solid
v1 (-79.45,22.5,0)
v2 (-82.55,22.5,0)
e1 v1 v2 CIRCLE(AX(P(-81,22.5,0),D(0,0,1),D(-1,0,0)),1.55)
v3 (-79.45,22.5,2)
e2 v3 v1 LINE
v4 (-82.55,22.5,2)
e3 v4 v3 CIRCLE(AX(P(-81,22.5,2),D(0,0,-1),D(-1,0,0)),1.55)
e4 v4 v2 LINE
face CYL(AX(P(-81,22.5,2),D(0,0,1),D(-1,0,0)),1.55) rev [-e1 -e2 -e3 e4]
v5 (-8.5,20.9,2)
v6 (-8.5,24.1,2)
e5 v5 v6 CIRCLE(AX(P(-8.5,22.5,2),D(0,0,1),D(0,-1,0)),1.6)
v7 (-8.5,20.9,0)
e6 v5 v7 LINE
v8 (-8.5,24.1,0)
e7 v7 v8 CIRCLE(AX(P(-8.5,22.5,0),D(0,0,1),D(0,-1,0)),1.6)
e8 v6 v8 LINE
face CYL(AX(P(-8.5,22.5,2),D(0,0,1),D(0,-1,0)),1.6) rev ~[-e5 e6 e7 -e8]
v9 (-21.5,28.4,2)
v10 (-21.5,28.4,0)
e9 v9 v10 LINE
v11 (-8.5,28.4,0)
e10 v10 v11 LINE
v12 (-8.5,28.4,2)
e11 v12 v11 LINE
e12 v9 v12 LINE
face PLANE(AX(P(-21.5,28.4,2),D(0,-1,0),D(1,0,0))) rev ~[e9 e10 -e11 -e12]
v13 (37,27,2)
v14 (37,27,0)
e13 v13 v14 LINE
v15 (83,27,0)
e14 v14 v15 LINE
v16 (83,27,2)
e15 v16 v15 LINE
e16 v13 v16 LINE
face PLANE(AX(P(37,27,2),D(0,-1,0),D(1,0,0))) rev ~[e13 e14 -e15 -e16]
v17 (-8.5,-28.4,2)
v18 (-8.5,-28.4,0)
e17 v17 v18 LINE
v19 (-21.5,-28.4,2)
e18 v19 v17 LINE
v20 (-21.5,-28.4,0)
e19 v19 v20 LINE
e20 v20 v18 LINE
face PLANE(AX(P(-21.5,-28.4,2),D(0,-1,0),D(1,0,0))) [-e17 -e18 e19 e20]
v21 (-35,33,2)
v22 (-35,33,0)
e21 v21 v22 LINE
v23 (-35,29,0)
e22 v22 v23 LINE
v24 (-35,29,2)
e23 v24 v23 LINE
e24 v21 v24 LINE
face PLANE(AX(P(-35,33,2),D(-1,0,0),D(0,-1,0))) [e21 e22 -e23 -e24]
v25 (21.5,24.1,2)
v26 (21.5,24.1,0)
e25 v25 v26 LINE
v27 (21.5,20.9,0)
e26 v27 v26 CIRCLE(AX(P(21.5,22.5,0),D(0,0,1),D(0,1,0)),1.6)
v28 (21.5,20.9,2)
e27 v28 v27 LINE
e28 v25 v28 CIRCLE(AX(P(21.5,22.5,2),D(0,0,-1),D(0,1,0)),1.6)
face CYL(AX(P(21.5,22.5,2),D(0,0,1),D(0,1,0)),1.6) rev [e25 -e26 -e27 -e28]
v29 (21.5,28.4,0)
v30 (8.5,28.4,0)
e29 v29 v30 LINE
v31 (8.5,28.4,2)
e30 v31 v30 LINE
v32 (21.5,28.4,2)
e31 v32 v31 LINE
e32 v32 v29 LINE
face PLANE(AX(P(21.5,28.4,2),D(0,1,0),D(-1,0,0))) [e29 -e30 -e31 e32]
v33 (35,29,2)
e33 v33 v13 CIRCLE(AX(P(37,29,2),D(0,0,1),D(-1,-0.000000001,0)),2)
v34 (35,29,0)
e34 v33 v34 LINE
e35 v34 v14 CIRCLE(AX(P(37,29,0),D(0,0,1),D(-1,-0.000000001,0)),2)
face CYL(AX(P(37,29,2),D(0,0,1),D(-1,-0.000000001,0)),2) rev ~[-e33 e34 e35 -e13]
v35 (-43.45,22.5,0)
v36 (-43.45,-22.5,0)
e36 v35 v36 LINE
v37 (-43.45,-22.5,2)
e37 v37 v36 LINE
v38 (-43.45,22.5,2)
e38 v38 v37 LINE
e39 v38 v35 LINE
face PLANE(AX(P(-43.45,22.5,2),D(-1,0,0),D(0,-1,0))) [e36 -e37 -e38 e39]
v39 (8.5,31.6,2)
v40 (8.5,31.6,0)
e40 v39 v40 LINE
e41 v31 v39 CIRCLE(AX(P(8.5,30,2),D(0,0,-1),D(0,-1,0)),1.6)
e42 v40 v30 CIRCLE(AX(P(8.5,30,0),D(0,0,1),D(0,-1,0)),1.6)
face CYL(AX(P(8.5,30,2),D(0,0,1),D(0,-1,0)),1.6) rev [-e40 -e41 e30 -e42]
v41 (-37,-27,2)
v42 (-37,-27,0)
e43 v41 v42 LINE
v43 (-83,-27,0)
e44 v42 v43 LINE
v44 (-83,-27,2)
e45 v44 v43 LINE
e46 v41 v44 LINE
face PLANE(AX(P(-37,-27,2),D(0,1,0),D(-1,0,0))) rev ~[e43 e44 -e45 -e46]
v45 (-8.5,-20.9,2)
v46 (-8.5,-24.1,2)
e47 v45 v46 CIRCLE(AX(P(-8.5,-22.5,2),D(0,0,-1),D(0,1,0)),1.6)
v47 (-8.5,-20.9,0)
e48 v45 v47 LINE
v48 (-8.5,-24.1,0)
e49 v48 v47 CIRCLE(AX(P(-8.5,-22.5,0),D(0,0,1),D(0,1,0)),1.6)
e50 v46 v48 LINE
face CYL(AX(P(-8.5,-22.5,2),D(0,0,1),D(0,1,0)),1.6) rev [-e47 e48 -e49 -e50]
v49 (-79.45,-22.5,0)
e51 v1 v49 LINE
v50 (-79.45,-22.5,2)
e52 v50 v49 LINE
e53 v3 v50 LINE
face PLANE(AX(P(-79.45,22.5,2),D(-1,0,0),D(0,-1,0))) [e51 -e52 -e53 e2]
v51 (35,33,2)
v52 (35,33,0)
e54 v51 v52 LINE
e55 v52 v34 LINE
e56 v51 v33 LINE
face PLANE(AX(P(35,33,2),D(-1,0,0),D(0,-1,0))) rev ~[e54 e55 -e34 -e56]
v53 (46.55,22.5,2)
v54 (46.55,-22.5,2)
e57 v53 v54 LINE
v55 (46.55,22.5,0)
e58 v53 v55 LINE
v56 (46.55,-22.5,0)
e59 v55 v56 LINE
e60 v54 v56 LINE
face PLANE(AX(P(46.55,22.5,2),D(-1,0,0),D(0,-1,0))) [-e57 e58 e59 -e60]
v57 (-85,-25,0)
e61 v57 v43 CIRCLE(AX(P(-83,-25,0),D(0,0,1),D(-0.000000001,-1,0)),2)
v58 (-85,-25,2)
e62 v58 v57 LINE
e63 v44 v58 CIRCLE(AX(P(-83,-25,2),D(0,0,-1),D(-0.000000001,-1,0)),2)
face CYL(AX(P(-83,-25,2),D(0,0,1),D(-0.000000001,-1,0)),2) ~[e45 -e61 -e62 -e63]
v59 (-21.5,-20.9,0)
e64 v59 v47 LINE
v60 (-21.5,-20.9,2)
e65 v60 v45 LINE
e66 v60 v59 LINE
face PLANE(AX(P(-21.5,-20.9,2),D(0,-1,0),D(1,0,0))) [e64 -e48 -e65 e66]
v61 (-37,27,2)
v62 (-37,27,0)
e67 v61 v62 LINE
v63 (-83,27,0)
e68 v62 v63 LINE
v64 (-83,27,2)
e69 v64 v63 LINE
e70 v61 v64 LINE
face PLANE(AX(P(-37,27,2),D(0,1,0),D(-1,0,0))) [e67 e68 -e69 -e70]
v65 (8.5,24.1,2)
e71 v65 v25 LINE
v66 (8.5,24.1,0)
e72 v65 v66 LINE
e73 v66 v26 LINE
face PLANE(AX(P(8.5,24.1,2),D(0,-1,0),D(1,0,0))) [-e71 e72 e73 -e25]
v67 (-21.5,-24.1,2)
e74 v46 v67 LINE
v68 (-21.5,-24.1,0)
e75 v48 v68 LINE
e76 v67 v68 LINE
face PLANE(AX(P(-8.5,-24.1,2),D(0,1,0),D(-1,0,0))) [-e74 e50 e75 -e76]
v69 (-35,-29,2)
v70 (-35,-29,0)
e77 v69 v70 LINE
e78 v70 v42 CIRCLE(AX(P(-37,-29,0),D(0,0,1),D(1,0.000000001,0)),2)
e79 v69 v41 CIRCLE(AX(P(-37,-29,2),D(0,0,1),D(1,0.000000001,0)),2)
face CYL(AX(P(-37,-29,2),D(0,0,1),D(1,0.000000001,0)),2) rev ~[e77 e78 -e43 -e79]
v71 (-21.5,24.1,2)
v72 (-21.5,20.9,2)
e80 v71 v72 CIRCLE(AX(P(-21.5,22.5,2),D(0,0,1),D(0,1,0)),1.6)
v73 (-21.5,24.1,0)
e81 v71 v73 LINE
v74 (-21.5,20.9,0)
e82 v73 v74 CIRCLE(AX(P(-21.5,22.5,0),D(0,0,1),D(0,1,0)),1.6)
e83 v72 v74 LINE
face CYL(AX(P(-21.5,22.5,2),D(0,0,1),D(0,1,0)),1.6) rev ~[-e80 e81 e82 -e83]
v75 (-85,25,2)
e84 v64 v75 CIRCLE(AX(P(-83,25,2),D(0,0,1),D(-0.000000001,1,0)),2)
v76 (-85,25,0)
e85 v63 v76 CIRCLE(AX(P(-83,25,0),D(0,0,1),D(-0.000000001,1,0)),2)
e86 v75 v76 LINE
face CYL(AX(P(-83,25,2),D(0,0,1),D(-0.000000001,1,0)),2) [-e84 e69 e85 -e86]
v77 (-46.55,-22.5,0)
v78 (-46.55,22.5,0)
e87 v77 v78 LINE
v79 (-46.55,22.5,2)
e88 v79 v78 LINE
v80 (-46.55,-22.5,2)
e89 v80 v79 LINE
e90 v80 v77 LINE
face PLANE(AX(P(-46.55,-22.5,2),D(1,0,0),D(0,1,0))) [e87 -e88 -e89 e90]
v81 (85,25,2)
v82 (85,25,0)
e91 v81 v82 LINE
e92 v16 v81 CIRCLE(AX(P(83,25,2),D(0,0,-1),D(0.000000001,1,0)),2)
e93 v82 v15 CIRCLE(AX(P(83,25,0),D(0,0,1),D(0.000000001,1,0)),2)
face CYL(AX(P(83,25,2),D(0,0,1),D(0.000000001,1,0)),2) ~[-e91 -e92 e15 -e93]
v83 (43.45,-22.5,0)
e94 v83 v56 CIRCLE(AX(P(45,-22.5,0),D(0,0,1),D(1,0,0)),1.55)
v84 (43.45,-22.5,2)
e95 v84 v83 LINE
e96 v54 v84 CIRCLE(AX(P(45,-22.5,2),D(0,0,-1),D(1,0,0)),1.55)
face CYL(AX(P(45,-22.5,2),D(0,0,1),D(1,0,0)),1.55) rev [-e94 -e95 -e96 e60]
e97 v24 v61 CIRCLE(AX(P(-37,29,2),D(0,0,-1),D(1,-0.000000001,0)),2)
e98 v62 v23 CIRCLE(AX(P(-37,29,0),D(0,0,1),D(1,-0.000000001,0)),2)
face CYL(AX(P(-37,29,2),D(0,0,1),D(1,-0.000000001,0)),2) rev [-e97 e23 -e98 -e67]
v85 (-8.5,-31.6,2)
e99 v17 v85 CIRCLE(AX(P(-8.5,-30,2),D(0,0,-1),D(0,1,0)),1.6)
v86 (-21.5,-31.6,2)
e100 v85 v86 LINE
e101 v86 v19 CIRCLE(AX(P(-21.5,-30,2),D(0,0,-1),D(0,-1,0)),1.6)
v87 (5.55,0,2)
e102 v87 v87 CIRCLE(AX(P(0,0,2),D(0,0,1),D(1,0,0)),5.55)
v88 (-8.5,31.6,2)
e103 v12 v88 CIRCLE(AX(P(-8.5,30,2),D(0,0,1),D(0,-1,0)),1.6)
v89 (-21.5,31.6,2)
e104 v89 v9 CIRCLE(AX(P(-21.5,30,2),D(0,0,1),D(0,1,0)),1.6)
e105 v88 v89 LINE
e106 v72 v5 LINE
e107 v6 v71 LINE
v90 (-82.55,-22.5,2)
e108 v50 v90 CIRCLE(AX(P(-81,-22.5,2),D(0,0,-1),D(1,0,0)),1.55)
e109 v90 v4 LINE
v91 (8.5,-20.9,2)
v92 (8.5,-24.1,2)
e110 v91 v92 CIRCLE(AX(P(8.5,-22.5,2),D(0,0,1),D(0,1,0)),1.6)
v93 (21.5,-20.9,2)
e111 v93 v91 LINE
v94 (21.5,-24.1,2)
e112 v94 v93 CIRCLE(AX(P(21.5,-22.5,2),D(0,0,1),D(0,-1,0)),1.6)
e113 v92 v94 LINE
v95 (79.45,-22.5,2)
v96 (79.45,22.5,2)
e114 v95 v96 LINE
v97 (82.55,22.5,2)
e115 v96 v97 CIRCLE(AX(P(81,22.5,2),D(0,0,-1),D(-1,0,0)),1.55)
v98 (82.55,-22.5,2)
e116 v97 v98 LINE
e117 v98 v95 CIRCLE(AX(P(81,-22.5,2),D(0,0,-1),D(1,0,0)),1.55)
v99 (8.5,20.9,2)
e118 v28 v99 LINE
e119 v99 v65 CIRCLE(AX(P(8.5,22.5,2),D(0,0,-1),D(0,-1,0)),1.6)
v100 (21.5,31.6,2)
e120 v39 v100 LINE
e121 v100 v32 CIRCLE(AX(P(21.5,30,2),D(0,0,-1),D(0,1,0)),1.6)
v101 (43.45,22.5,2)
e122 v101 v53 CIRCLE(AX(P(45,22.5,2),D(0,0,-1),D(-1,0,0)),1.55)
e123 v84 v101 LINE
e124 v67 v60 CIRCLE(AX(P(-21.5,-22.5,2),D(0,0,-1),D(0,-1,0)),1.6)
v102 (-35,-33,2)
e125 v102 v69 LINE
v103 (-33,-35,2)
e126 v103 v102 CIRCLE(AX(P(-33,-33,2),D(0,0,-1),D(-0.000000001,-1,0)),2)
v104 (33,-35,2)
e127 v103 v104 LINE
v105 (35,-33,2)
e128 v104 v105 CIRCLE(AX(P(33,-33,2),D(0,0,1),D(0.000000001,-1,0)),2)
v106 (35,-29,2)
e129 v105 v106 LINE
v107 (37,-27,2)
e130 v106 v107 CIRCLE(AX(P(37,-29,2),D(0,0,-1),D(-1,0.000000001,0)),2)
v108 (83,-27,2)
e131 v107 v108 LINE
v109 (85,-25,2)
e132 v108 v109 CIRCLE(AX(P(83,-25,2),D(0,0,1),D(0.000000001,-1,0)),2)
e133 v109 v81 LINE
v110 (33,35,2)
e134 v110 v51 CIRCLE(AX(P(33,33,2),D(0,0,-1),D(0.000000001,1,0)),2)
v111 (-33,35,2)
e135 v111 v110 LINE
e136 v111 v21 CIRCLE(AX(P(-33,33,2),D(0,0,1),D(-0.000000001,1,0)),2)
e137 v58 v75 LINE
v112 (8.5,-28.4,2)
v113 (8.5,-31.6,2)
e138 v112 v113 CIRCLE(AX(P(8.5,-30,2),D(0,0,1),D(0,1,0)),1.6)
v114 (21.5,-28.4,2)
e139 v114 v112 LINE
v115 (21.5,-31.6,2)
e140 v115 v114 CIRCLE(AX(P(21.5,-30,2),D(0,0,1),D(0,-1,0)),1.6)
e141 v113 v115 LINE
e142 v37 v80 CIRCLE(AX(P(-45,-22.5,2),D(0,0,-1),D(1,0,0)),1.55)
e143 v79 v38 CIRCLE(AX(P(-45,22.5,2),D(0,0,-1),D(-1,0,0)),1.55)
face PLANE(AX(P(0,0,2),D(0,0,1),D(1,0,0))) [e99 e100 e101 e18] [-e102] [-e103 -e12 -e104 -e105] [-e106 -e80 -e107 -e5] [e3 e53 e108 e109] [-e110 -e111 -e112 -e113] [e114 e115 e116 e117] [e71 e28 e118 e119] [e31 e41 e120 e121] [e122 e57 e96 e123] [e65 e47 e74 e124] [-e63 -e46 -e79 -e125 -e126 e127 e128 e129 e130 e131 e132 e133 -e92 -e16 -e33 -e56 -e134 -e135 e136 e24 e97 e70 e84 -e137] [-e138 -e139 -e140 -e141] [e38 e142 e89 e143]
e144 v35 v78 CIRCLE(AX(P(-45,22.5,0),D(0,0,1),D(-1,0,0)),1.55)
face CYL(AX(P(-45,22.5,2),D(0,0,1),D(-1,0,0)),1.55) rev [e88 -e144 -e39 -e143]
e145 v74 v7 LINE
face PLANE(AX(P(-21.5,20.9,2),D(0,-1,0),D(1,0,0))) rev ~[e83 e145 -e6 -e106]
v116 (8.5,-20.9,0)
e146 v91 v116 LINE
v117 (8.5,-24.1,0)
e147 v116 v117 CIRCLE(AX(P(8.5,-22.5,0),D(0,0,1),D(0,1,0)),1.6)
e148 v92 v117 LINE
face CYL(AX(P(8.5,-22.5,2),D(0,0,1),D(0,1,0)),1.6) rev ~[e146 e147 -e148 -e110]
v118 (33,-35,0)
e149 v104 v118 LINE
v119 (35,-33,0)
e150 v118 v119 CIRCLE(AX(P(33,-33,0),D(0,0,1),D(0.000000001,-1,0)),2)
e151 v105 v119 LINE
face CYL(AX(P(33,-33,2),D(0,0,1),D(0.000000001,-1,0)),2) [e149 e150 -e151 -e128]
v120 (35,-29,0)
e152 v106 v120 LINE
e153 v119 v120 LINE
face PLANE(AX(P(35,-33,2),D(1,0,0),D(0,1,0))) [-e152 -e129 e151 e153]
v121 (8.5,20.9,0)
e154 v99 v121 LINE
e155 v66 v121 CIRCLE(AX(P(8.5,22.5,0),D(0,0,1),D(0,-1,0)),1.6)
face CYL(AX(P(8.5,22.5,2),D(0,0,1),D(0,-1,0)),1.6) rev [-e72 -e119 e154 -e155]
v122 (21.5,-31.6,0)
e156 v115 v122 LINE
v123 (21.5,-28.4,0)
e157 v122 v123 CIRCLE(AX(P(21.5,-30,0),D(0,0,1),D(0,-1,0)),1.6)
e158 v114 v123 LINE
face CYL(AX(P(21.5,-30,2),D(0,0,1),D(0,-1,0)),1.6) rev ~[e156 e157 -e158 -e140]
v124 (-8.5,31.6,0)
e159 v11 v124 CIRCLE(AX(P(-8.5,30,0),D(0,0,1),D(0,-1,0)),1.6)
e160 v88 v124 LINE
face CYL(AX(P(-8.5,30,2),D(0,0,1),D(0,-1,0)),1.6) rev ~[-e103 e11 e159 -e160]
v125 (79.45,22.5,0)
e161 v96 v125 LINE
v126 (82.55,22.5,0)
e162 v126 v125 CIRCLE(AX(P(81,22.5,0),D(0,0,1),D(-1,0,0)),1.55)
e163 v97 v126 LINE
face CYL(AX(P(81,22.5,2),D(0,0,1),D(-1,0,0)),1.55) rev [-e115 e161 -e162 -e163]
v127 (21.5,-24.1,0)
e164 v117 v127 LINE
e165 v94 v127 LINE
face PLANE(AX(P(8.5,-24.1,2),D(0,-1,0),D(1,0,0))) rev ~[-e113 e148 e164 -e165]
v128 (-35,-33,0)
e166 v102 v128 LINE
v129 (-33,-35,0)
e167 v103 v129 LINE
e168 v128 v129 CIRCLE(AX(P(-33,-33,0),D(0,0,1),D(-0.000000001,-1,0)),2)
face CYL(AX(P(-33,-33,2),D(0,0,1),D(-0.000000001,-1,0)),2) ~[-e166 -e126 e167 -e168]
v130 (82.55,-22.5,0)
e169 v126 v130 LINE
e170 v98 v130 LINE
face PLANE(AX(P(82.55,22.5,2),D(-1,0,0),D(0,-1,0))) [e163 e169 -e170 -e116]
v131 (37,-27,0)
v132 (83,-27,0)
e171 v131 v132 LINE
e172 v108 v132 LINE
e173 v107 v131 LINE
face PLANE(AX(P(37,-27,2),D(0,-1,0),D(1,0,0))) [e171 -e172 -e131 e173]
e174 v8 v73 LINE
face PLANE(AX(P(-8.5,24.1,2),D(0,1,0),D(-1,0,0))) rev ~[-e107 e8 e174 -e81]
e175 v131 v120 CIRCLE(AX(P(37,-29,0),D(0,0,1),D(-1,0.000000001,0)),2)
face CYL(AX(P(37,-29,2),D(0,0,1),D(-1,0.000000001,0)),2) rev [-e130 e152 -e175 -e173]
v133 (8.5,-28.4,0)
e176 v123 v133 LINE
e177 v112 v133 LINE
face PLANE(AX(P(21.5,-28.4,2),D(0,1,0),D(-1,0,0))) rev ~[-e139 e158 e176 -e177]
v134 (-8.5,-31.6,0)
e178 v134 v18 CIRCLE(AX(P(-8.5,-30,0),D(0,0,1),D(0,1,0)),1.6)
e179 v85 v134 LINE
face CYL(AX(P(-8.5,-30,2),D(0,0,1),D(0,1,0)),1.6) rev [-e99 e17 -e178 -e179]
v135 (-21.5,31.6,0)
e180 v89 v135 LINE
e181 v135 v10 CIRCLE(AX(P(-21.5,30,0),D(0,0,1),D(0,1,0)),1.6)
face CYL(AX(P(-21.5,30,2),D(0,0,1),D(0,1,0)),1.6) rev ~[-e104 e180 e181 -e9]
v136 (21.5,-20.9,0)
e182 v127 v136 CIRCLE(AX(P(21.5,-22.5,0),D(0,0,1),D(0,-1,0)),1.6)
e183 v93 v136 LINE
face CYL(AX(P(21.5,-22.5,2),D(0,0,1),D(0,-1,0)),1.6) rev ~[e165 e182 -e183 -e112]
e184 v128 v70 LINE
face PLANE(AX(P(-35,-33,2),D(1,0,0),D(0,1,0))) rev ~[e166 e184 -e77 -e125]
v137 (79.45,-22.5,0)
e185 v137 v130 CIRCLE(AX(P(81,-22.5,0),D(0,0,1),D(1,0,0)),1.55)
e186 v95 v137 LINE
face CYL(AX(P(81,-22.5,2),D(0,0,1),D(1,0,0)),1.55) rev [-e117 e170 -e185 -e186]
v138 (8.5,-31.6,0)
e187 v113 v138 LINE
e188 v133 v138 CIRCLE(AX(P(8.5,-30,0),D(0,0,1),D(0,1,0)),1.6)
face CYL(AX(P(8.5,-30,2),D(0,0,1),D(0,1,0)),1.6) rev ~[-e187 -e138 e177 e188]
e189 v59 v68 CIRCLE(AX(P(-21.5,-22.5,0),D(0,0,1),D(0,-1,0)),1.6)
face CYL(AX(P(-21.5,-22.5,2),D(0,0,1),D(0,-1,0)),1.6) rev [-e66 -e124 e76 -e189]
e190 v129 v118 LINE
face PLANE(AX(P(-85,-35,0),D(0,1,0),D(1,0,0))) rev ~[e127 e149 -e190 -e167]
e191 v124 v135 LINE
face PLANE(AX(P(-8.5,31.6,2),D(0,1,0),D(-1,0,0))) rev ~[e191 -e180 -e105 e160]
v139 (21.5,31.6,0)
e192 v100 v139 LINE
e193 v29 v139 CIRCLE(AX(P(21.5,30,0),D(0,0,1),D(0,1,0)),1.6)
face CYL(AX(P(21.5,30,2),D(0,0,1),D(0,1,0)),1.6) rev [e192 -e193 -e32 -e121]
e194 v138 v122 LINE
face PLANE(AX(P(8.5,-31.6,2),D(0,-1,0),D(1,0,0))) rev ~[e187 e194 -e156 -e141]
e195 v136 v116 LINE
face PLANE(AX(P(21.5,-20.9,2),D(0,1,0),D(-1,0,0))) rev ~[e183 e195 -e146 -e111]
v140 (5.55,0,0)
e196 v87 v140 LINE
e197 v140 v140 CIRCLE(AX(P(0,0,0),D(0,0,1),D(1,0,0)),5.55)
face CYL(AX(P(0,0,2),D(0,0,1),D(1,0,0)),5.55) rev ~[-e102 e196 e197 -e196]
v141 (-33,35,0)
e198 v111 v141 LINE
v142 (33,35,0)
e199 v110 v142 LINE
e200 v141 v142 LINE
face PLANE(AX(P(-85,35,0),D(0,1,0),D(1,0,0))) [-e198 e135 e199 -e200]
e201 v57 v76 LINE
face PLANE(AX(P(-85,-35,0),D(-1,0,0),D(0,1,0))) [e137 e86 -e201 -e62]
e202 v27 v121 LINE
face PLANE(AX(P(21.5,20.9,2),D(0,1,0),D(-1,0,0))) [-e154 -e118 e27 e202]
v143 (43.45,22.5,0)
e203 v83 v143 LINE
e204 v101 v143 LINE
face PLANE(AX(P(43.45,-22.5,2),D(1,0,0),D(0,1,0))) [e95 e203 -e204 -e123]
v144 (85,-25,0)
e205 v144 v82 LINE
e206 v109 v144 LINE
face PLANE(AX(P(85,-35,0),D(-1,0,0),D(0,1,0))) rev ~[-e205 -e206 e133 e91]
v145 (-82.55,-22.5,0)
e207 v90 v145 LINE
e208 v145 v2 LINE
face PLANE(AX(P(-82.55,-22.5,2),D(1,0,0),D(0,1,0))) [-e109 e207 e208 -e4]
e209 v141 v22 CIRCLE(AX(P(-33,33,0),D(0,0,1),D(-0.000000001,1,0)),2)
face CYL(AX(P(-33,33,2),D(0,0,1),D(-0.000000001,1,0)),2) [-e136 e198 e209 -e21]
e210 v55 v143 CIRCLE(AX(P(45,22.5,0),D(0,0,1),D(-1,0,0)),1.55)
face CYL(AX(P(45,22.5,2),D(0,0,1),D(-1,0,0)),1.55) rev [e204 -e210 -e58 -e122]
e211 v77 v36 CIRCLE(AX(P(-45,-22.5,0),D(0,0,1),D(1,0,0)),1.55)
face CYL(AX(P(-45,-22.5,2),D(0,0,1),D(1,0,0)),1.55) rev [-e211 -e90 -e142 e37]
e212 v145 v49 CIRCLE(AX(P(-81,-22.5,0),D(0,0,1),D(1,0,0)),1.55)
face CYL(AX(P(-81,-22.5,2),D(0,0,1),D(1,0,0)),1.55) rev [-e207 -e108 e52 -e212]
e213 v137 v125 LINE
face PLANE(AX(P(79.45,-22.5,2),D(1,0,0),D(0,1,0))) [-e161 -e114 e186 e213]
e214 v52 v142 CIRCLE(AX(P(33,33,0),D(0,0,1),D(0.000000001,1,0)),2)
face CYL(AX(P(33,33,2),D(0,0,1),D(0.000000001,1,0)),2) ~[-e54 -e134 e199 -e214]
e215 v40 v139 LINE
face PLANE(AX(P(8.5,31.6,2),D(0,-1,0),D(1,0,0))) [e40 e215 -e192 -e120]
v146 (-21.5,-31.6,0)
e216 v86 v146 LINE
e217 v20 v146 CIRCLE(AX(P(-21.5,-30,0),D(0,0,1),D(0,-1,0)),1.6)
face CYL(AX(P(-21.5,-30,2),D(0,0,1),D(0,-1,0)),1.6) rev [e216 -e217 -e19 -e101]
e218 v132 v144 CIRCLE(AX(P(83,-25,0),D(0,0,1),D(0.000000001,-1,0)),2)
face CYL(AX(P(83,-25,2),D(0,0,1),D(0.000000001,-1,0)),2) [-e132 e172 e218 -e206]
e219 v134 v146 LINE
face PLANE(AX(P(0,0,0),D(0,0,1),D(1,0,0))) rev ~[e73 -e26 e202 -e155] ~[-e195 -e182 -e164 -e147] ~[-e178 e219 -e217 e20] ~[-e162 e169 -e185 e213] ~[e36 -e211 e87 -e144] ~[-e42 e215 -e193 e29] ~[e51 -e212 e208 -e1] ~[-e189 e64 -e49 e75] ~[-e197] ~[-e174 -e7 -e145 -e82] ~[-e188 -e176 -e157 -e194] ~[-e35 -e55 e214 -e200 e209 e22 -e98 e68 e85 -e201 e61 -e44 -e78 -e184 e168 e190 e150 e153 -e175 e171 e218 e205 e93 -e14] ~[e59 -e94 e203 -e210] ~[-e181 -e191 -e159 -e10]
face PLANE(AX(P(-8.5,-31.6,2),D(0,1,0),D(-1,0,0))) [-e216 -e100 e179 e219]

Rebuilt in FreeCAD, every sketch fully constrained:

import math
import FreeCAD as App
import Part
import Sketcher


def add_polygon(sketch, points):
    """Adds a closed chain of lines whose ends are joined by coincident constraints."""
    first, n = sketch.GeometryCount, len(points)
    for a, b in zip(points, points[1:] + points[:1]):
        sketch.addGeometry(Part.LineSegment(App.Vector(*a, 0), App.Vector(*b, 0)), False)
    for i in range(n):
        sketch.addConstraint(Sketcher.Constraint("Coincident", first + i, 2, first + (i + 1) % n, 1))

doc = App.newDocument("Part")
params = doc.addObject("Spreadsheet::Sheet", "Params")
for row, (alias, value) in enumerate([
    ("sketch1_width", "170 mm"),
    ("sketch1_height", "70 mm"),
    ("pad1_length", "2 mm"),
    ("sketch2_diameter", "11.1 mm"),
    ("sketch2_radius", "1.6 mm"),
    ("sketch2_width", "13 mm"),
    ("sketch2_height", "45 mm"),
    ("sketch2_radius2", "1.55 mm"),
    ("sketch3_radius", "2 mm"),
    ("sketch3_width", "52 mm"),
    ("sketch3_height", "4 mm"),
], start=1):
    params.set(f"A{row}", alias)
    params.set(f"B{row}", "=" + value)
    params.setAlias(f"B{row}", alias)

body = doc.addObject("PartDesign::Body", "Body")

# Sketch on XY plane
sketch1 = body.newObject("Sketcher::SketchObject", "Sketch")
sketch1.AttachmentSupport = (doc.getObject("XY_Plane"), [""])
sketch1.MapMode = "FlatFace"
add_polygon(sketch1, [(-85, 35), (-85, -35), (85, -35), (85, 35)])  # lines 0-3
sketch1.addConstraint(Sketcher.Constraint("Vertical", 0))
sketch1.addConstraint(Sketcher.Constraint("Horizontal", 1))
sketch1.addConstraint(Sketcher.Constraint("Vertical", 2))
sketch1.addConstraint(Sketcher.Constraint("Horizontal", 3))
sketch1.addConstraint(Sketcher.Constraint("Symmetric", 0, 2, 2, 2, -1, 1))
sketch1.addConstraint(Sketcher.Constraint("DistanceX", 1, 1, 1, 2, 170.0))
sketch1.addConstraint(Sketcher.Constraint("DistanceY", 0, 2, 0, 1, 70.0))
sketch1.setExpression("Constraints[9]", "Params.sketch1_width")
sketch1.setExpression("Constraints[10]", "Params.sketch1_height")
pad1 = body.newObject("PartDesign::Pad", "Pad")
pad1.Profile = sketch1
pad1.setExpression("Length", "Params.pad1_length")

# Sketch on XY plane
sketch2 = body.newObject("Sketcher::SketchObject", "Sketch001")
sketch2.AttachmentSupport = (doc.getObject("XY_Plane"), [""])
sketch2.MapMode = "FlatFace"
sketch2.AttachmentOffset = App.Placement(App.Vector(0, 0, 2), App.Rotation())
sketch2.addGeometry(Part.Circle(App.Vector(0, 0, 0), App.Vector(0, 0, 1), 5.5), False)
sketch2.addGeometry(Part.LineSegment(App.Vector(43.5, 22.5, 0), App.Vector(43.5, -22.5, 0)), False)
sketch2.addGeometry(Part.ArcOfCircle(Part.Circle(App.Vector(45, -22.5, 0), App.Vector(0, 0, 1), 1.6), math.radians(180), math.radians(360)), False)
sketch2.addGeometry(Part.LineSegment(App.Vector(46.5, -22.5, 0), App.Vector(46.5, 22.5, 0)), False)
sketch2.addGeometry(Part.ArcOfCircle(Part.Circle(App.Vector(45, 22.5, 0), App.Vector(0, 0, 1), 1.6), math.radians(0), math.radians(180)), False)
sketch2.addGeometry(Part.LineSegment(App.Vector(-46.5, 22.5, 0), App.Vector(-46.5, -22.5, 0)), False)
sketch2.addGeometry(Part.ArcOfCircle(Part.Circle(App.Vector(-45, -22.5, 0), App.Vector(0, 0, 1), 1.6), math.radians(180), math.radians(360)), False)
sketch2.addGeometry(Part.LineSegment(App.Vector(-43.5, -22.5, 0), App.Vector(-43.5, 22.5, 0)), False)
sketch2.addGeometry(Part.ArcOfCircle(Part.Circle(App.Vector(-45, 22.5, 0), App.Vector(0, 0, 1), 1.6), math.radians(0), math.radians(180)), False)
sketch2.addGeometry(Part.LineSegment(App.Vector(8.5, 28.4, 0), App.Vector(21.5, 28.4, 0)), False)
sketch2.addGeometry(Part.ArcOfCircle(Part.Circle(App.Vector(21.5, 30, 0), App.Vector(0, 0, 1), 1.6), math.radians(-90), math.radians(90)), False)
sketch2.addGeometry(Part.LineSegment(App.Vector(21.5, 31.6, 0), App.Vector(8.5, 31.6, 0)), False)
sketch2.addGeometry(Part.ArcOfCircle(Part.Circle(App.Vector(8.5, 30, 0), App.Vector(0, 0, 1), 1.6), math.radians(90), math.radians(270)), False)
sketch2.addGeometry(Part.LineSegment(App.Vector(-82.5, 22.5, 0), App.Vector(-82.5, -22.5, 0)), False)
sketch2.addGeometry(Part.ArcOfCircle(Part.Circle(App.Vector(-81, -22.5, 0), App.Vector(0, 0, 1), 1.6), math.radians(180), math.radians(360)), False)
sketch2.addGeometry(Part.LineSegment(App.Vector(-79.5, -22.5, 0), App.Vector(-79.5, 22.5, 0)), False)
sketch2.addGeometry(Part.ArcOfCircle(Part.Circle(App.Vector(-81, 22.5, 0), App.Vector(0, 0, 1), 1.6), math.radians(0), math.radians(180)), False)
sketch2.addGeometry(Part.LineSegment(App.Vector(79.5, 22.5, 0), App.Vector(79.5, -22.5, 0)), False)
sketch2.addGeometry(Part.ArcOfCircle(Part.Circle(App.Vector(81, -22.5, 0), App.Vector(0, 0, 1), 1.6), math.radians(180), math.radians(360)), False)
sketch2.addGeometry(Part.LineSegment(App.Vector(82.5, -22.5, 0), App.Vector(82.5, 22.5, 0)), False)
sketch2.addGeometry(Part.ArcOfCircle(Part.Circle(App.Vector(81, 22.5, 0), App.Vector(0, 0, 1), 1.6), math.radians(0), math.radians(180)), False)
sketch2.addGeometry(Part.LineSegment(App.Vector(8.5, 20.9, 0), App.Vector(21.5, 20.9, 0)), False)
sketch2.addGeometry(Part.ArcOfCircle(Part.Circle(App.Vector(21.5, 22.5, 0), App.Vector(0, 0, 1), 1.6), math.radians(-90), math.radians(90)), False)
sketch2.addGeometry(Part.LineSegment(App.Vector(21.5, 24.1, 0), App.Vector(8.5, 24.1, 0)), False)
sketch2.addGeometry(Part.ArcOfCircle(Part.Circle(App.Vector(8.5, 22.5, 0), App.Vector(0, 0, 1), 1.6), math.radians(90), math.radians(270)), False)
sketch2.addGeometry(Part.LineSegment(App.Vector(-21.5, 28.4, 0), App.Vector(-8.5, 28.4, 0)), False)
sketch2.addGeometry(Part.ArcOfCircle(Part.Circle(App.Vector(-8.5, 30, 0), App.Vector(0, 0, 1), 1.6), math.radians(-90), math.radians(90)), False)
sketch2.addGeometry(Part.LineSegment(App.Vector(-8.5, 31.6, 0), App.Vector(-21.5, 31.6, 0)), False)
sketch2.addGeometry(Part.ArcOfCircle(Part.Circle(App.Vector(-21.5, 30, 0), App.Vector(0, 0, 1), 1.6), math.radians(90), math.radians(270)), False)
sketch2.addGeometry(Part.LineSegment(App.Vector(-21.5, 20.9, 0), App.Vector(-8.5, 20.9, 0)), False)
sketch2.addGeometry(Part.ArcOfCircle(Part.Circle(App.Vector(-8.5, 22.5, 0), App.Vector(0, 0, 1), 1.6), math.radians(-90), math.radians(90)), False)
sketch2.addGeometry(Part.LineSegment(App.Vector(-8.5, 24.1, 0), App.Vector(-21.5, 24.1, 0)), False)
sketch2.addGeometry(Part.ArcOfCircle(Part.Circle(App.Vector(-21.5, 22.5, 0), App.Vector(0, 0, 1), 1.6), math.radians(90), math.radians(270)), False)
sketch2.addGeometry(Part.LineSegment(App.Vector(21.5, -28.4, 0), App.Vector(8.5, -28.4, 0)), False)
sketch2.addGeometry(Part.ArcOfCircle(Part.Circle(App.Vector(8.5, -30, 0), App.Vector(0, 0, 1), 1.6), math.radians(90), math.radians(270)), False)
sketch2.addGeometry(Part.LineSegment(App.Vector(8.5, -31.6, 0), App.Vector(21.5, -31.6, 0)), False)
sketch2.addGeometry(Part.ArcOfCircle(Part.Circle(App.Vector(21.5, -30, 0), App.Vector(0, 0, 1), 1.6), math.radians(-90), math.radians(90)), False)
sketch2.addGeometry(Part.LineSegment(App.Vector(21.5, -20.9, 0), App.Vector(8.5, -20.9, 0)), False)
sketch2.addGeometry(Part.ArcOfCircle(Part.Circle(App.Vector(8.5, -22.5, 0), App.Vector(0, 0, 1), 1.6), math.radians(90), math.radians(270)), False)
sketch2.addGeometry(Part.LineSegment(App.Vector(8.5, -24.1, 0), App.Vector(21.5, -24.1, 0)), False)
sketch2.addGeometry(Part.ArcOfCircle(Part.Circle(App.Vector(21.5, -22.5, 0), App.Vector(0, 0, 1), 1.6), math.radians(-90), math.radians(90)), False)
sketch2.addGeometry(Part.LineSegment(App.Vector(-8.5, -28.4, 0), App.Vector(-21.5, -28.4, 0)), False)
sketch2.addGeometry(Part.ArcOfCircle(Part.Circle(App.Vector(-21.5, -30, 0), App.Vector(0, 0, 1), 1.6), math.radians(90), math.radians(270)), False)
sketch2.addGeometry(Part.LineSegment(App.Vector(-21.5, -31.6, 0), App.Vector(-8.5, -31.6, 0)), False)
sketch2.addGeometry(Part.ArcOfCircle(Part.Circle(App.Vector(-8.5, -30, 0), App.Vector(0, 0, 1), 1.6), math.radians(-90), math.radians(90)), False)
sketch2.addGeometry(Part.LineSegment(App.Vector(-8.5, -20.9, 0), App.Vector(-21.5, -20.9, 0)), False)
sketch2.addGeometry(Part.ArcOfCircle(Part.Circle(App.Vector(-21.5, -22.5, 0), App.Vector(0, 0, 1), 1.6), math.radians(90), math.radians(270)), False)
sketch2.addGeometry(Part.LineSegment(App.Vector(-21.5, -24.1, 0), App.Vector(-8.5, -24.1, 0)), False)
sketch2.addGeometry(Part.ArcOfCircle(Part.Circle(App.Vector(-8.5, -22.5, 0), App.Vector(0, 0, 1), 1.6), math.radians(-90), math.radians(90)), False)
sketch2.addConstraint(Sketcher.Constraint("Tangent", 1, 2, 2, 1))
sketch2.addConstraint(Sketcher.Constraint("Tangent", 2, 2, 3, 1))
sketch2.addConstraint(Sketcher.Constraint("Tangent", 3, 2, 4, 1))
sketch2.addConstraint(Sketcher.Constraint("Tangent", 4, 2, 1, 1))
sketch2.addConstraint(Sketcher.Constraint("Tangent", 5, 2, 6, 1))
sketch2.addConstraint(Sketcher.Constraint("Tangent", 6, 2, 7, 1))
sketch2.addConstraint(Sketcher.Constraint("Tangent", 7, 2, 8, 1))
sketch2.addConstraint(Sketcher.Constraint("Tangent", 8, 2, 5, 1))
sketch2.addConstraint(Sketcher.Constraint("Tangent", 9, 2, 10, 1))
sketch2.addConstraint(Sketcher.Constraint("Tangent", 10, 2, 11, 1))
sketch2.addConstraint(Sketcher.Constraint("Tangent", 11, 2, 12, 1))
sketch2.addConstraint(Sketcher.Constraint("Tangent", 12, 2, 9, 1))
sketch2.addConstraint(Sketcher.Constraint("Tangent", 13, 2, 14, 1))
sketch2.addConstraint(Sketcher.Constraint("Tangent", 14, 2, 15, 1))
sketch2.addConstraint(Sketcher.Constraint("Tangent", 15, 2, 16, 1))
sketch2.addConstraint(Sketcher.Constraint("Tangent", 16, 2, 13, 1))
sketch2.addConstraint(Sketcher.Constraint("Tangent", 17, 2, 18, 1))
sketch2.addConstraint(Sketcher.Constraint("Tangent", 18, 2, 19, 1))
sketch2.addConstraint(Sketcher.Constraint("Tangent", 19, 2, 20, 1))
sketch2.addConstraint(Sketcher.Constraint("Tangent", 20, 2, 17, 1))
sketch2.addConstraint(Sketcher.Constraint("Tangent", 21, 2, 22, 1))
sketch2.addConstraint(Sketcher.Constraint("Tangent", 22, 2, 23, 1))
sketch2.addConstraint(Sketcher.Constraint("Tangent", 23, 2, 24, 1))
sketch2.addConstraint(Sketcher.Constraint("Tangent", 24, 2, 21, 1))
sketch2.addConstraint(Sketcher.Constraint("Tangent", 25, 2, 26, 1))
sketch2.addConstraint(Sketcher.Constraint("Tangent", 26, 2, 27, 1))
sketch2.addConstraint(Sketcher.Constraint("Tangent", 27, 2, 28, 1))
sketch2.addConstraint(Sketcher.Constraint("Tangent", 28, 2, 25, 1))
sketch2.addConstraint(Sketcher.Constraint("Tangent", 29, 2, 30, 1))
sketch2.addConstraint(Sketcher.Constraint("Tangent", 30, 2, 31, 1))
sketch2.addConstraint(Sketcher.Constraint("Tangent", 31, 2, 32, 1))
sketch2.addConstraint(Sketcher.Constraint("Tangent", 32, 2, 29, 1))
sketch2.addConstraint(Sketcher.Constraint("Tangent", 33, 2, 34, 1))
sketch2.addConstraint(Sketcher.Constraint("Tangent", 34, 2, 35, 1))
sketch2.addConstraint(Sketcher.Constraint("Tangent", 35, 2, 36, 1))
sketch2.addConstraint(Sketcher.Constraint("Tangent", 36, 2, 33, 1))
sketch2.addConstraint(Sketcher.Constraint("Tangent", 37, 2, 38, 1))
sketch2.addConstraint(Sketcher.Constraint("Tangent", 38, 2, 39, 1))
sketch2.addConstraint(Sketcher.Constraint("Tangent", 39, 2, 40, 1))
sketch2.addConstraint(Sketcher.Constraint("Tangent", 40, 2, 37, 1))
sketch2.addConstraint(Sketcher.Constraint("Tangent", 41, 2, 42, 1))
sketch2.addConstraint(Sketcher.Constraint("Tangent", 42, 2, 43, 1))
sketch2.addConstraint(Sketcher.Constraint("Tangent", 43, 2, 44, 1))
sketch2.addConstraint(Sketcher.Constraint("Tangent", 44, 2, 41, 1))
sketch2.addConstraint(Sketcher.Constraint("Tangent", 45, 2, 46, 1))
sketch2.addConstraint(Sketcher.Constraint("Tangent", 46, 2, 47, 1))
sketch2.addConstraint(Sketcher.Constraint("Tangent", 47, 2, 48, 1))
sketch2.addConstraint(Sketcher.Constraint("Tangent", 48, 2, 45, 1))
sketch2.addConstraint(Sketcher.Constraint("Vertical", 1))
sketch2.addConstraint(Sketcher.Constraint("Vertical", 3))
sketch2.addConstraint(Sketcher.Constraint("Vertical", 5))
sketch2.addConstraint(Sketcher.Constraint("Vertical", 7))
sketch2.addConstraint(Sketcher.Constraint("Horizontal", 9))
sketch2.addConstraint(Sketcher.Constraint("Horizontal", 11))
sketch2.addConstraint(Sketcher.Constraint("Vertical", 13))
sketch2.addConstraint(Sketcher.Constraint("Vertical", 15))
sketch2.addConstraint(Sketcher.Constraint("Vertical", 17))
sketch2.addConstraint(Sketcher.Constraint("Vertical", 19))
sketch2.addConstraint(Sketcher.Constraint("Horizontal", 21))
sketch2.addConstraint(Sketcher.Constraint("Horizontal", 23))
sketch2.addConstraint(Sketcher.Constraint("Horizontal", 25))
sketch2.addConstraint(Sketcher.Constraint("Horizontal", 27))
sketch2.addConstraint(Sketcher.Constraint("Horizontal", 29))
sketch2.addConstraint(Sketcher.Constraint("Horizontal", 31))
sketch2.addConstraint(Sketcher.Constraint("Horizontal", 33))
sketch2.addConstraint(Sketcher.Constraint("Horizontal", 35))
sketch2.addConstraint(Sketcher.Constraint("Horizontal", 37))
sketch2.addConstraint(Sketcher.Constraint("Horizontal", 39))
sketch2.addConstraint(Sketcher.Constraint("Horizontal", 41))
sketch2.addConstraint(Sketcher.Constraint("Horizontal", 43))
sketch2.addConstraint(Sketcher.Constraint("Horizontal", 45))
sketch2.addConstraint(Sketcher.Constraint("Horizontal", 47))
sketch2.addConstraint(Sketcher.Constraint("Coincident", 0, 3, -1, 1))
sketch2.addConstraint(Sketcher.Constraint("Equal", 4, 6))
sketch2.addConstraint(Sketcher.Constraint("Equal", 8, 14))
sketch2.addConstraint(Sketcher.Constraint("Equal", 16, 18))
sketch2.addConstraint(Sketcher.Constraint("Equal", 12, 22))
sketch2.addConstraint(Sketcher.Constraint("Equal", 24, 26))
sketch2.addConstraint(Sketcher.Constraint("Equal", 28, 30))
sketch2.addConstraint(Sketcher.Constraint("Equal", 32, 34))
sketch2.addConstraint(Sketcher.Constraint("Equal", 36, 38))
sketch2.addConstraint(Sketcher.Constraint("Equal", 40, 42))
sketch2.addConstraint(Sketcher.Constraint("Equal", 44, 46))
sketch2.addConstraint(Sketcher.Constraint("Symmetric", 4, 3, 6, 3, -1, 1))
sketch2.addConstraint(Sketcher.Constraint("Symmetric", 16, 3, 18, 3, -1, 1))
sketch2.addConstraint(Sketcher.Constraint("Symmetric", 26, 3, 34, 3, -1, 1))
sketch2.addConstraint(Sketcher.Constraint("Symmetric", 30, 3, 38, 3, -1, 1))
sketch2.addConstraint(Sketcher.Constraint("Symmetric", 10, 3, 42, 3, -1, 1))
sketch2.addConstraint(Sketcher.Constraint("Symmetric", 22, 3, 46, 3, -1, 1))
sketch2.addConstraint(Sketcher.Constraint("Symmetric", 12, 3, 26, 3, -2))
sketch2.addConstraint(Sketcher.Constraint("Symmetric", 24, 3, 30, 3, -2))
sketch2.addConstraint(Sketcher.Constraint("Horizontal", 2, 3, 6, 3))
sketch2.addConstraint(Sketcher.Constraint("Horizontal", 4, 3, 8, 3))
sketch2.addConstraint(Sketcher.Constraint("Horizontal", 6, 3, 14, 3))
sketch2.addConstraint(Sketcher.Constraint("Horizontal", 8, 3, 16, 3))
sketch2.addConstraint(Sketcher.Constraint("Horizontal", 16, 3, 20, 3))
sketch2.addConstraint(Sketcher.Constraint("Horizontal", 20, 3, 22, 3))
sketch2.addConstraint(Sketcher.Constraint("Vertical", 10, 3, 22, 3))
sketch2.addConstraint(Sketcher.Constraint("Vertical", 12, 3, 24, 3))
sketch2.addConstraint(Sketcher.Constraint("Vertical", 28, 3, 32, 3))
sketch2.addConstraint(Sketcher.Constraint("Vertical", 22, 3, 36, 3))
sketch2.addConstraint(Sketcher.Constraint("Vertical", 36, 3, 40, 3))
sketch2.addConstraint(Sketcher.Constraint("Vertical", 32, 3, 42, 3))
sketch2.addConstraint(Sketcher.Constraint("Vertical", 30, 3, 44, 3))
sketch2.addConstraint(Sketcher.Constraint("Vertical", 44, 3, 48, 3))
sketch2.addConstraint(Sketcher.Constraint("Diameter", 0, 11.1))
sketch2.addConstraint(Sketcher.Constraint("Radius", 10, 1.6))
sketch2.addConstraint(Sketcher.Constraint("DistanceX", 9, 1, 9, 2, 13.0))
sketch2.addConstraint(Sketcher.Constraint("DistanceY", 1, 2, 1, 1, 45.0))
sketch2.addConstraint(Sketcher.Constraint("Radius", 2, 1.55))
sketch2.addConstraint(Sketcher.Constraint("DistanceX", -1, 1, 2, 3, 45.0))
sketch2.addConstraint(Sketcher.Constraint("DistanceY", -1, 1, 10, 3, 30.0))
sketch2.addConstraint(Sketcher.Constraint("DistanceX", 14, 3, -1, 1, 81.0))
sketch2.addConstraint(Sketcher.Constraint("DistanceX", -1, 1, 10, 3, 21.5))
sketch2.setExpression("Constraints[105]", "Params.sketch2_diameter")
sketch2.setExpression("Constraints[106]", "Params.sketch2_radius")
sketch2.setExpression("Constraints[107]", "Params.sketch2_width")
sketch2.setExpression("Constraints[108]", "Params.sketch2_height")
sketch2.setExpression("Constraints[109]", "Params.sketch2_radius2")
pocket1 = body.newObject("PartDesign::Pocket", "Pocket")
pocket1.Profile = sketch2
pocket1.Type = "ThroughAll"

# Sketch on XY plane
sketch3 = body.newObject("Sketcher::SketchObject", "Sketch002")
sketch3.AttachmentSupport = (doc.getObject("XY_Plane"), [""])
sketch3.MapMode = "FlatFace"
sketch3.AttachmentOffset = App.Placement(App.Vector(0, 0, 2), App.Rotation())
sketch3.addGeometry(Part.LineSegment(App.Vector(85, 35, 0), App.Vector(33, 35, 0)), False)
sketch3.addGeometry(Part.ArcOfCircle(Part.Circle(App.Vector(33, 33, 0), App.Vector(0, 0, 1), 2), math.radians(0), math.radians(90)), False)
sketch3.addGeometry(Part.LineSegment(App.Vector(35, 33, 0), App.Vector(35, 29, 0)), False)
sketch3.addGeometry(Part.ArcOfCircle(Part.Circle(App.Vector(37, 29, 0), App.Vector(0, 0, 1), 2), math.radians(-180), math.radians(-90)), False)
sketch3.addGeometry(Part.LineSegment(App.Vector(37, 27, 0), App.Vector(83, 27, 0)), False)
sketch3.addGeometry(Part.ArcOfCircle(Part.Circle(App.Vector(83, 25, 0), App.Vector(0, 0, 1), 2), math.radians(0), math.radians(90)), False)
sketch3.addGeometry(Part.LineSegment(App.Vector(85, 25, 0), App.Vector(85, 35, 0)), False)
sketch3.addGeometry(Part.LineSegment(App.Vector(35, -29, 0), App.Vector(35, -33, 0)), False)
sketch3.addGeometry(Part.ArcOfCircle(Part.Circle(App.Vector(33, -33, 0), App.Vector(0, 0, 1), 2), math.radians(-90), math.radians(0)), False)
sketch3.addGeometry(Part.LineSegment(App.Vector(33, -35, 0), App.Vector(85, -35, 0)), False)
sketch3.addGeometry(Part.LineSegment(App.Vector(85, -35, 0), App.Vector(85, -25, 0)), False)
sketch3.addGeometry(Part.ArcOfCircle(Part.Circle(App.Vector(83, -25, 0), App.Vector(0, 0, 1), 2), math.radians(-90), math.radians(0)), False)
sketch3.addGeometry(Part.LineSegment(App.Vector(83, -27, 0), App.Vector(37, -27, 0)), False)
sketch3.addGeometry(Part.ArcOfCircle(Part.Circle(App.Vector(37, -29, 0), App.Vector(0, 0, 1), 2), math.radians(90), math.radians(180)), False)
sketch3.addGeometry(Part.LineSegment(App.Vector(-85, -35, 0), App.Vector(-33, -35, 0)), False)
sketch3.addGeometry(Part.ArcOfCircle(Part.Circle(App.Vector(-33, -33, 0), App.Vector(0, 0, 1), 2), math.radians(-180), math.radians(-90)), False)
sketch3.addGeometry(Part.LineSegment(App.Vector(-35, -33, 0), App.Vector(-35, -29, 0)), False)
sketch3.addGeometry(Part.ArcOfCircle(Part.Circle(App.Vector(-37, -29, 0), App.Vector(0, 0, 1), 2), math.radians(0), math.radians(90)), False)
sketch3.addGeometry(Part.LineSegment(App.Vector(-37, -27, 0), App.Vector(-83, -27, 0)), False)
sketch3.addGeometry(Part.ArcOfCircle(Part.Circle(App.Vector(-83, -25, 0), App.Vector(0, 0, 1), 2), math.radians(-180), math.radians(-90)), False)
sketch3.addGeometry(Part.LineSegment(App.Vector(-85, -25, 0), App.Vector(-85, -35, 0)), False)
sketch3.addGeometry(Part.LineSegment(App.Vector(-35, 29, 0), App.Vector(-35, 33, 0)), False)
sketch3.addGeometry(Part.ArcOfCircle(Part.Circle(App.Vector(-33, 33, 0), App.Vector(0, 0, 1), 2), math.radians(90), math.radians(180)), False)
sketch3.addGeometry(Part.LineSegment(App.Vector(-33, 35, 0), App.Vector(-85, 35, 0)), False)
sketch3.addGeometry(Part.LineSegment(App.Vector(-85, 35, 0), App.Vector(-85, 25, 0)), False)
sketch3.addGeometry(Part.ArcOfCircle(Part.Circle(App.Vector(-83, 25, 0), App.Vector(0, 0, 1), 2), math.radians(90), math.radians(180)), False)
sketch3.addGeometry(Part.LineSegment(App.Vector(-83, 27, 0), App.Vector(-37, 27, 0)), False)
sketch3.addGeometry(Part.ArcOfCircle(Part.Circle(App.Vector(-37, 29, 0), App.Vector(0, 0, 1), 2), math.radians(-90), math.radians(0)), False)
sketch3.addConstraint(Sketcher.Constraint("Tangent", 0, 2, 1, 2))
sketch3.addConstraint(Sketcher.Constraint("Tangent", 1, 1, 2, 1))
sketch3.addConstraint(Sketcher.Constraint("Tangent", 2, 2, 3, 1))
sketch3.addConstraint(Sketcher.Constraint("Tangent", 3, 2, 4, 1))
sketch3.addConstraint(Sketcher.Constraint("Tangent", 4, 2, 5, 2))
sketch3.addConstraint(Sketcher.Constraint("Tangent", 5, 1, 6, 1))
sketch3.addConstraint(Sketcher.Constraint("Coincident", 6, 2, 0, 1))
sketch3.addConstraint(Sketcher.Constraint("Tangent", 7, 2, 8, 2))
sketch3.addConstraint(Sketcher.Constraint("Tangent", 8, 1, 9, 1))
sketch3.addConstraint(Sketcher.Constraint("Coincident", 9, 2, 10, 1))
sketch3.addConstraint(Sketcher.Constraint("Tangent", 10, 2, 11, 2))
sketch3.addConstraint(Sketcher.Constraint("Tangent", 11, 1, 12, 1))
sketch3.addConstraint(Sketcher.Constraint("Tangent", 12, 2, 13, 1))
sketch3.addConstraint(Sketcher.Constraint("Tangent", 13, 2, 7, 1))
sketch3.addConstraint(Sketcher.Constraint("Tangent", 14, 2, 15, 2))
sketch3.addConstraint(Sketcher.Constraint("Tangent", 15, 1, 16, 1))
sketch3.addConstraint(Sketcher.Constraint("Tangent", 16, 2, 17, 1))
sketch3.addConstraint(Sketcher.Constraint("Tangent", 17, 2, 18, 1))
sketch3.addConstraint(Sketcher.Constraint("Tangent", 18, 2, 19, 2))
sketch3.addConstraint(Sketcher.Constraint("Tangent", 19, 1, 20, 1))
sketch3.addConstraint(Sketcher.Constraint("Coincident", 20, 2, 14, 1))
sketch3.addConstraint(Sketcher.Constraint("Tangent", 21, 2, 22, 2))
sketch3.addConstraint(Sketcher.Constraint("Tangent", 22, 1, 23, 1))
sketch3.addConstraint(Sketcher.Constraint("Coincident", 23, 2, 24, 1))
sketch3.addConstraint(Sketcher.Constraint("Tangent", 24, 2, 25, 2))
sketch3.addConstraint(Sketcher.Constraint("Tangent", 25, 1, 26, 1))
sketch3.addConstraint(Sketcher.Constraint("Tangent", 26, 2, 27, 1))
sketch3.addConstraint(Sketcher.Constraint("Tangent", 27, 2, 21, 1))
sketch3.addConstraint(Sketcher.Constraint("Horizontal", 0))
sketch3.addConstraint(Sketcher.Constraint("Vertical", 2))
sketch3.addConstraint(Sketcher.Constraint("Horizontal", 4))
sketch3.addConstraint(Sketcher.Constraint("Vertical", 6))
sketch3.addConstraint(Sketcher.Constraint("Vertical", 7))
sketch3.addConstraint(Sketcher.Constraint("Horizontal", 9))
sketch3.addConstraint(Sketcher.Constraint("Vertical", 10))
sketch3.addConstraint(Sketcher.Constraint("Horizontal", 12))
sketch3.addConstraint(Sketcher.Constraint("Horizontal", 14))
sketch3.addConstraint(Sketcher.Constraint("Vertical", 16))
sketch3.addConstraint(Sketcher.Constraint("Horizontal", 18))
sketch3.addConstraint(Sketcher.Constraint("Vertical", 20))
sketch3.addConstraint(Sketcher.Constraint("Vertical", 21))
sketch3.addConstraint(Sketcher.Constraint("Horizontal", 23))
sketch3.addConstraint(Sketcher.Constraint("Vertical", 24))
sketch3.addConstraint(Sketcher.Constraint("Horizontal", 26))
sketch3.addConstraint(Sketcher.Constraint("Equal", 1, 3))
sketch3.addConstraint(Sketcher.Constraint("Equal", 3, 5))
sketch3.addConstraint(Sketcher.Constraint("Equal", 5, 8))
sketch3.addConstraint(Sketcher.Constraint("Equal", 8, 11))
sketch3.addConstraint(Sketcher.Constraint("Equal", 11, 13))
sketch3.addConstraint(Sketcher.Constraint("Equal", 13, 15))
sketch3.addConstraint(Sketcher.Constraint("Equal", 15, 17))
sketch3.addConstraint(Sketcher.Constraint("Equal", 17, 19))
sketch3.addConstraint(Sketcher.Constraint("Equal", 19, 22))
sketch3.addConstraint(Sketcher.Constraint("Equal", 22, 25))
sketch3.addConstraint(Sketcher.Constraint("Equal", 25, 27))
sketch3.addConstraint(Sketcher.Constraint("Symmetric", 1, 3, 15, 3, -1, 1))
sketch3.addConstraint(Sketcher.Constraint("Symmetric", 5, 3, 19, 3, -1, 1))
sketch3.addConstraint(Sketcher.Constraint("Symmetric", 8, 3, 22, 3, -1, 1))
sketch3.addConstraint(Sketcher.Constraint("Symmetric", 11, 3, 25, 3, -1, 1))
sketch3.addConstraint(Sketcher.Constraint("Symmetric", 8, 3, 15, 3, -2))
sketch3.addConstraint(Sketcher.Constraint("Symmetric", 11, 3, 19, 3, -2))
sketch3.addConstraint(Sketcher.Constraint("Radius", 1, 2.0))
sketch3.addConstraint(Sketcher.Constraint("DistanceX", 0, 2, 0, 1, 52.0))
sketch3.addConstraint(Sketcher.Constraint("DistanceY", 2, 2, 2, 1, 4.0))
sketch3.addConstraint(Sketcher.Constraint("DistanceX", -1, 1, 1, 3, 33.0))
sketch3.addConstraint(Sketcher.Constraint("DistanceY", -1, 1, 1, 3, 33.0))
sketch3.setExpression("Constraints[61]", "Params.sketch3_radius")
sketch3.setExpression("Constraints[62]", "Params.sketch3_width")
sketch3.setExpression("Constraints[63]", "Params.sketch3_height")
pocket2 = body.newObject("PartDesign::Pocket", "Pocket001")
pocket2.Profile = sketch3
pocket2.Type = "ThroughAll"

doc.recompute()
